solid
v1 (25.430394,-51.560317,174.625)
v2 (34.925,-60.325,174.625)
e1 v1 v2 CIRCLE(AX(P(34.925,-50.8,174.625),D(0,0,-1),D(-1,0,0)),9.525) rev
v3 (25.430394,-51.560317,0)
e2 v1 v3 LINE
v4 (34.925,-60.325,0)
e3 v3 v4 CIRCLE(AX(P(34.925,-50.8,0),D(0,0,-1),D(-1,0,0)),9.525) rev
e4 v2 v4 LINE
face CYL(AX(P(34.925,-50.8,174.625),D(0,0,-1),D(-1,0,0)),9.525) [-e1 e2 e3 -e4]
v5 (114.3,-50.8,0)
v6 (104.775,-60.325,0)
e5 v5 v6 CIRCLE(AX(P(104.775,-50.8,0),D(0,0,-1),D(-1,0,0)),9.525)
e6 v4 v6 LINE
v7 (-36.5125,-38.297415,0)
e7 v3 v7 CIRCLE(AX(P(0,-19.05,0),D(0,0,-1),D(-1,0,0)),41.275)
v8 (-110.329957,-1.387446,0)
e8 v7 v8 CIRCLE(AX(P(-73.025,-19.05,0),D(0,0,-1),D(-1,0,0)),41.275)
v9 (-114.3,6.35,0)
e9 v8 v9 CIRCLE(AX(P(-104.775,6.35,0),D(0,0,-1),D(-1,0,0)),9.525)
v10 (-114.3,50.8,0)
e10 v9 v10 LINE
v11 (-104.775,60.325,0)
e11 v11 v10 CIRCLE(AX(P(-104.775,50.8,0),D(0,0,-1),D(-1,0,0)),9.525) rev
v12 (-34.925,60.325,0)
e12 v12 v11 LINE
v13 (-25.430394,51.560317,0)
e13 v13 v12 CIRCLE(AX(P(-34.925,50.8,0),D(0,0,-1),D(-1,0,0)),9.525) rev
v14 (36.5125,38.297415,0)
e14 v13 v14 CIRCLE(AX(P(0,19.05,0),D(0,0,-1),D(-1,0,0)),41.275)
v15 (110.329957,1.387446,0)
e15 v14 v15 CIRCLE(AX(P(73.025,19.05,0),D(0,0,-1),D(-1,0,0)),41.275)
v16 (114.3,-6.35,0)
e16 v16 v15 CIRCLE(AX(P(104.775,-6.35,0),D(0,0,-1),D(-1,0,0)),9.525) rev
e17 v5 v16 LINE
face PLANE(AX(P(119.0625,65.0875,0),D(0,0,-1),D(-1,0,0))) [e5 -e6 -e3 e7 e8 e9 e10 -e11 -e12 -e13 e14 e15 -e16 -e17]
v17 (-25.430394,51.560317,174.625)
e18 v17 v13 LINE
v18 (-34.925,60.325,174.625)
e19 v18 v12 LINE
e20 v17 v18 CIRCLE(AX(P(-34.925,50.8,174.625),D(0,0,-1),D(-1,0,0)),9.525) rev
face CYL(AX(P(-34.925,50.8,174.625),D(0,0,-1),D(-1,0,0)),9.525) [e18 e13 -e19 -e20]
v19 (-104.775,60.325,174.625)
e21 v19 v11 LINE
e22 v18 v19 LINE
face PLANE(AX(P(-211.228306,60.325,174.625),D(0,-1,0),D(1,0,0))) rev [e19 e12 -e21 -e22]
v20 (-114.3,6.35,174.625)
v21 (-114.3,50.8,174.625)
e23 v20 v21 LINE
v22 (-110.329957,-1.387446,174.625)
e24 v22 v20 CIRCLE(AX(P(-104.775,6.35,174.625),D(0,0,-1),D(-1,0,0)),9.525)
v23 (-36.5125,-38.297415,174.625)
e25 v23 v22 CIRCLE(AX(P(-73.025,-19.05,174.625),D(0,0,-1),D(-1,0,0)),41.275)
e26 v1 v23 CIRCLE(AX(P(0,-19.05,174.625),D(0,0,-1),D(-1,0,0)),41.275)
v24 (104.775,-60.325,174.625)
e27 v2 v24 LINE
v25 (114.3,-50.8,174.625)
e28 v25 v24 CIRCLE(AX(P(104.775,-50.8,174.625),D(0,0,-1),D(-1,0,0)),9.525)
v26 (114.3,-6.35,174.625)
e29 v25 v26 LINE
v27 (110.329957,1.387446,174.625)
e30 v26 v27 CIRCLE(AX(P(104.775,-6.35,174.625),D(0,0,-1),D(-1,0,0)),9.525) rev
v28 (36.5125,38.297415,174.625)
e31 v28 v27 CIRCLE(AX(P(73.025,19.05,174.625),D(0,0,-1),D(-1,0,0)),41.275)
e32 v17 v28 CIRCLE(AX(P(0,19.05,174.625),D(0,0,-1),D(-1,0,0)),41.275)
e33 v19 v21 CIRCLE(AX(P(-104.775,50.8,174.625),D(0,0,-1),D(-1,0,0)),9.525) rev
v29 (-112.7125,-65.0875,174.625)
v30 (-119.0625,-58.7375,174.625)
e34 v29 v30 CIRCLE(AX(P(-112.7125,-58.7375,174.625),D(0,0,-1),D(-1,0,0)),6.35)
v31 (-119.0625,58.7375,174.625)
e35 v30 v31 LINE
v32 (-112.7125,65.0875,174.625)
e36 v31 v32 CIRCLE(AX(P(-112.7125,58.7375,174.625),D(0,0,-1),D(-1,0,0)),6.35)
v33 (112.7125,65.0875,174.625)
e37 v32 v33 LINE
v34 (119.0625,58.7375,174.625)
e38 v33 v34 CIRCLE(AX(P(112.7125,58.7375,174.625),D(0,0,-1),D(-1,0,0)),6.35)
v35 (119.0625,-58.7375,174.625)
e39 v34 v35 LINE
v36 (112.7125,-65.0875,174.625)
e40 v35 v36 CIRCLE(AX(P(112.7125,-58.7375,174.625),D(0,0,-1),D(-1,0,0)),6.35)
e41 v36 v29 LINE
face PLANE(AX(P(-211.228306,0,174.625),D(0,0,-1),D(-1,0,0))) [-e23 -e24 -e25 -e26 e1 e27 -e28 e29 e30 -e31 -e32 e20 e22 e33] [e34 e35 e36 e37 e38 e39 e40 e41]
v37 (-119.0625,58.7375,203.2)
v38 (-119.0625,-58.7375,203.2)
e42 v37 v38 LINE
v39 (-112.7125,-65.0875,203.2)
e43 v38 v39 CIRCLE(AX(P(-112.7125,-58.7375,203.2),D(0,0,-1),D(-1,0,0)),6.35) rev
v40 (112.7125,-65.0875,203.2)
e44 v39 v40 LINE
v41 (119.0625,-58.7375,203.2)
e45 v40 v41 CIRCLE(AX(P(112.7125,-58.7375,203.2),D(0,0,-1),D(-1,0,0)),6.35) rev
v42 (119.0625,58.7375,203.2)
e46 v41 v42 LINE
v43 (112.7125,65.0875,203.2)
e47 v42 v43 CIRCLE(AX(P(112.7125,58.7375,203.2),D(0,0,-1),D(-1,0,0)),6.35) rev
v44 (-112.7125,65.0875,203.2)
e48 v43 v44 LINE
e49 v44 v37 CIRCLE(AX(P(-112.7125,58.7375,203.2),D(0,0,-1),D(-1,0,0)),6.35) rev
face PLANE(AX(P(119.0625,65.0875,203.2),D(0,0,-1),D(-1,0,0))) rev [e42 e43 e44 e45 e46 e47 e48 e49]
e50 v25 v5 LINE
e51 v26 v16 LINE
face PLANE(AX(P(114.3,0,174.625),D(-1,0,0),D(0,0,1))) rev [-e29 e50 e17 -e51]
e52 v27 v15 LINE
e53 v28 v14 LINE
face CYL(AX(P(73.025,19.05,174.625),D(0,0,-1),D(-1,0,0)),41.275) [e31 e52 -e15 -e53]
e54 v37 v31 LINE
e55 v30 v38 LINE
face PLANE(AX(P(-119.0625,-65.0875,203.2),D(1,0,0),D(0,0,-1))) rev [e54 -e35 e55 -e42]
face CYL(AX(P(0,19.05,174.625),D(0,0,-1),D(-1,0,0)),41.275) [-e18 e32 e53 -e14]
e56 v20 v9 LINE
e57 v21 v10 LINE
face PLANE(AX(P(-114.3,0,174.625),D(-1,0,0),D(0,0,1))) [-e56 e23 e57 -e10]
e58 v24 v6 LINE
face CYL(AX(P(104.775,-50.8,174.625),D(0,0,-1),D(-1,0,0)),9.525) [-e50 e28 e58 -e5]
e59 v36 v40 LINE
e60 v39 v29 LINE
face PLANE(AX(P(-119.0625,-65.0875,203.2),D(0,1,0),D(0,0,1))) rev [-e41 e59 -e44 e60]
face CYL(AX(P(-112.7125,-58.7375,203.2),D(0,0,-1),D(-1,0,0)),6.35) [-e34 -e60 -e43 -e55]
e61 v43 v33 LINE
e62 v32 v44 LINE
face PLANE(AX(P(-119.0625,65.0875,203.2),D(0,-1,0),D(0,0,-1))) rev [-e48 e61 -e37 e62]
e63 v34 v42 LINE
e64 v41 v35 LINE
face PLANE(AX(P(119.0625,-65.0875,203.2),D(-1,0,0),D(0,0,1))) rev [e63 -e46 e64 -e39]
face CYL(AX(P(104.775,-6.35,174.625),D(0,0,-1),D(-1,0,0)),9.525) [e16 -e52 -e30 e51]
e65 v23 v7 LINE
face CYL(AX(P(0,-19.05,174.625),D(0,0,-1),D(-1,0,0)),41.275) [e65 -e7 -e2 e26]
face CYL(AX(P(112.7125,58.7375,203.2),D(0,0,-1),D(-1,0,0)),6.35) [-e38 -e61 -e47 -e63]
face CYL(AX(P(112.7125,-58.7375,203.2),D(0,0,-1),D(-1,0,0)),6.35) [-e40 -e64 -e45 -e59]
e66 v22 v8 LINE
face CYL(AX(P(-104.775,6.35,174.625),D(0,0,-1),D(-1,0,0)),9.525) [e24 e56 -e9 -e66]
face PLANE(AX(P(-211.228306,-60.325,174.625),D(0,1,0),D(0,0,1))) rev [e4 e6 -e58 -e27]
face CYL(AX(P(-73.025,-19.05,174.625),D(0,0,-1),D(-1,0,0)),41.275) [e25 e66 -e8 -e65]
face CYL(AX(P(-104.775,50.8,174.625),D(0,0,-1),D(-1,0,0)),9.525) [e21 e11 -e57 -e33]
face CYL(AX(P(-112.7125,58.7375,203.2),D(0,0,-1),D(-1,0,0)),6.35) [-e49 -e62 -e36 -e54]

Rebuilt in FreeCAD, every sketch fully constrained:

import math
import FreeCAD as App
import Part
import Sketcher

V = App.Vector
Q = App.Units.Quantity


def edges_at(feature, points):
    """Names of the edges that pass closest to the given points."""
    edges = feature.Shape.Edges
    near = lambda p: min(range(len(edges)), key=lambda i: edges[i].distToShape(Part.Vertex(*p))[0])
    return sorted({f"Edge{near(p) + 1}" for p in points})


def add_polygon(sketch, points):
    """Adds a closed chain of lines whose ends are joined by coincident constraints."""
    first, n = sketch.GeometryCount, len(points)
    for a, b in zip(points, points[1:] + points[:1]):
        sketch.addGeometry(Part.LineSegment(App.Vector(*a, 0), App.Vector(*b, 0)), False)
    for i in range(n):
        sketch.addConstraint(Sketcher.Constraint("Coincident", first + i, 2, first + (i + 1) % n, 1))

doc = App.newDocument("Part")
body = doc.addObject("PartDesign::Body", "Body")

sketch1 = body.newObject("Sketcher::SketchObject", "Sketch")
sketch1.AttachmentSupport = (doc.getObject("XY_Plane"), [""])
sketch1.MapMode = "FlatFace"
add_polygon(sketch1, [(-119.0625, 65.0875), (-119.0625, -65.0875), (119.0625, -65.0875), (119.0625, 65.0875)])
sketch1.addConstraint([
    Sketcher.Constraint("Vertical", 0),
    Sketcher.Constraint("Horizontal", 1),
    Sketcher.Constraint("Vertical", 2),
    Sketcher.Constraint("Horizontal", 3),
    Sketcher.Constraint("Symmetric", 0, 2, 2, 2, -1, 1),
    Sketcher.Constraint("DistanceX", 1, 1, 1, 2, Q("9.375 in")),
    Sketcher.Constraint("DistanceY", 0, 2, 0, 1, Q("5.125 in")),
])
pad1 = body.newObject("PartDesign::Pad", "Pad")
pad1.Profile = sketch1
pad1.Length = Q("8 in")

sketch2 = body.newObject("Sketcher::SketchObject", "Sketch001")
sketch2.AttachmentSupport = (doc.getObject("XY_Plane"), [""])
sketch2.MapMode = "FlatFace"
add_polygon(sketch2, [(119.0625, 65.0875), (119.0625, -65.0875), (-119.0625, -65.0875), (-119.0625, 65.0875)])
sketch2.addGeometry(Part.ArcOfCircle(Part.Circle(V(-73.025, -19.05, 0), V(0, 0, 1), 41.275), math.radians(154.664131), math.radians(180)), False)
sketch2.addGeometry(Part.ArcOfCircle(Part.Circle(V(-73.025, -19.05, 0), V(0, 0, 1), 41.275), math.radians(180), math.radians(332.204228)), False)
sketch2.addGeometry(Part.ArcOfCircle(Part.Circle(V(0, -19.05, 0), V(0, 0, 1), 41.275), math.radians(-152.204228), math.radians(-51.966581)), False)
sketch2.addGeometry(Part.ArcOfCircle(Part.Circle(V(34.925, -50.8, 0), V(0, 0, 1), 9.525), math.radians(-175.421593), math.radians(-90)), False)
sketch2.addGeometry(Part.LineSegment(V(34.925, -60.325, 0), V(104.775, -60.325, 0)), False)
sketch2.addGeometry(Part.ArcOfCircle(Part.Circle(V(104.775, -50.8, 0), V(0, 0, 1), 9.525), math.radians(-90), math.radians(0)), False)
sketch2.addGeometry(Part.LineSegment(V(114.3, -50.8, 0), V(114.3, -6.35, 0)), False)
sketch2.addGeometry(Part.ArcOfCircle(Part.Circle(V(104.775, -6.35, 0), V(0, 0, 1), 9.525), math.radians(0), math.radians(54.32424)), False)
sketch2.addGeometry(Part.ArcOfCircle(Part.Circle(V(73.025, 19.05, 0), V(0, 0, 1), 41.275), math.radians(-25.335869), math.radians(152.204228)), False)
sketch2.addGeometry(Part.ArcOfCircle(Part.Circle(V(0, 19.05, 0), V(0, 0, 1), 41.275), math.radians(27.795772), math.radians(128.033419)), False)
sketch2.addGeometry(Part.ArcOfCircle(Part.Circle(V(-34.925, 50.8, 0), V(0, 0, 1), 9.525), math.radians(4.578407), math.radians(90)), False)
sketch2.addGeometry(Part.LineSegment(V(-34.925, 60.325, 0), V(-104.775, 60.325, 0)), False)
sketch2.addGeometry(Part.ArcOfCircle(Part.Circle(V(-104.775, 50.8, 0), V(0, 0, 1), 9.525), math.radians(90), math.radians(180)), False)
sketch2.addGeometry(Part.LineSegment(V(-114.3, 50.8, 0), V(-114.3, 6.35, 0)), False)
sketch2.addGeometry(Part.ArcOfCircle(Part.Circle(V(-104.775, 6.35, 0), V(0, 0, 1), 9.525), math.radians(-180), math.radians(-125.67576)), False)
sketch2.addConstraint([
    Sketcher.Constraint("Tangent", 4, 2, 5, 1),
    Sketcher.Constraint("Coincident", 5, 2, 6, 1),
    Sketcher.Constraint("Coincident", 6, 2, 7, 1),
    Sketcher.Constraint("Tangent", 7, 2, 8, 1),
    Sketcher.Constraint("Tangent", 8, 2, 9, 1),
    Sketcher.Constraint("Tangent", 9, 2, 10, 1),
    Sketcher.Constraint("Tangent", 10, 2, 11, 1),
    Sketcher.Constraint("Coincident", 11, 2, 12, 1),
    Sketcher.Constraint("Coincident", 12, 2, 13, 1),
    Sketcher.Constraint("Coincident", 13, 2, 14, 1),
    Sketcher.Constraint("Tangent", 14, 2, 15, 1),
    Sketcher.Constraint("Tangent", 15, 2, 16, 1),
    Sketcher.Constraint("Tangent", 16, 2, 17, 1),
    Sketcher.Constraint("Tangent", 17, 2, 18, 1),
    Sketcher.Constraint("Coincident", 18, 2, 4, 1),
    Sketcher.Constraint("Vertical", 0),
    Sketcher.Constraint("Horizontal", 1),
    Sketcher.Constraint("Vertical", 2),
    Sketcher.Constraint("Horizontal", 3),
    Sketcher.Constraint("Horizontal", 8),
    Sketcher.Constraint("Vertical", 10),
    Sketcher.Constraint("Horizontal", 15),
    Sketcher.Constraint("Vertical", 17),
    Sketcher.Constraint("Equal", 4, 5),
    Sketcher.Constraint("Equal", 5, 6),
    Sketcher.Constraint("Equal", 7, 9),
    Sketcher.Constraint("Equal", 9, 11),
    Sketcher.Constraint("Equal", 6, 12),
    Sketcher.Constraint("Equal", 12, 13),
    Sketcher.Constraint("Equal", 11, 14),
    Sketcher.Constraint("Equal", 14, 16),
    Sketcher.Constraint("Equal", 16, 18),
    Sketcher.Constraint("Symmetric", 4, 3, 12, 3, -1, 1),
    Sketcher.Constraint("Symmetric", 6, 3, 13, 3, -1, 1),
    Sketcher.Constraint("Symmetric", 7, 3, 14, 3, -1, 1),
    Sketcher.Constraint("Symmetric", 11, 3, 18, 3, -1, 1),
    Sketcher.Constraint("Symmetric", 0, 2, 2, 2, -1, 1),
    Sketcher.Constraint("PointOnObject", 6, 3, -2),
    Sketcher.Constraint("Horizontal", 5, 3, 6, 3),
    Sketcher.Constraint("Horizontal", 6, 3, 4, 2),
    Sketcher.Constraint("Vertical", 4, 2, 16, 2),
    Sketcher.Constraint("DistanceY", 7, 3, -1, 1, Q("2 in")),
    Sketcher.Constraint("Radius", 4, Q("1.625 in")),
    Sketcher.Constraint("Radius", 7, Q("0.375 in")),
    Sketcher.Constraint("DistanceX", 5, 3, 9, 3, Q("7 in")),
    Sketcher.Constraint("DistanceY", 11, 3, 12, 3, Q("1 in")),
    Sketcher.Constraint("DistanceX", 8, 1, 8, 2, Q("2.75 in")),
    Sketcher.Constraint("DistanceY", 10, 1, 10, 2, Q("1.75 in")),
    Sketcher.Constraint("DistanceX", 1, 2, 1, 1, Q("9.375 in")),
    Sketcher.Constraint("DistanceY", 0, 2, 0, 1, Q("5.125 in")),
])
pocket1 = body.newObject("PartDesign::Pocket", "Pocket")
pocket1.Profile = sketch2
pocket1.Length = Q("6.875 in")
pocket1.Reversed = True
doc.recompute()

fillet = body.newObject("PartDesign::Fillet", "Fillet")
fillet.Base = (pocket1, edges_at(pocket1, [
    (119.062, -65.088, 188.912),
    (-119.062, -65.088, 188.912),
    (-119.062, 65.088, 188.912),
    (119.062, 65.088, 188.912),
]))
fillet.Radius = Q("0.25 in")

doc.recompute()
